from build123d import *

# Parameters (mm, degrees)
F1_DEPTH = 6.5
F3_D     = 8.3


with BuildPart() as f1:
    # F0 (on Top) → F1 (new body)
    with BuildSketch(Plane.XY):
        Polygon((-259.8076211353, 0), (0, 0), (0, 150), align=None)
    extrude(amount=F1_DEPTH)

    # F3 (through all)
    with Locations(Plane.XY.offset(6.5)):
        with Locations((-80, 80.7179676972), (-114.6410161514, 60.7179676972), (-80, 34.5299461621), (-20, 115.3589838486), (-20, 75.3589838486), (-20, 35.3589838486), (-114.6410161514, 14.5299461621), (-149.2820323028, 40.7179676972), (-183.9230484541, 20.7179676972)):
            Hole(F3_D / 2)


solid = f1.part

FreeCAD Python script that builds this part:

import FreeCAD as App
import Part
import Sketcher

V = App.Vector
Q = App.Units.Quantity


def add_polygon(sketch, points):
    """Adds a closed chain of lines whose ends are joined by coincident constraints."""
    first, n = sketch.GeometryCount, len(points)
    for a, b in zip(points, points[1:] + points[:1]):
        sketch.addGeometry(Part.LineSegment(App.Vector(*a, 0), App.Vector(*b, 0)), False)
    for i in range(n):
        sketch.addConstraint(Sketcher.Constraint("Coincident", first + i, 2, first + (i + 1) % n, 1))

doc = App.newDocument("Part")
body = doc.addObject("PartDesign::Body", "Body")

# Sketch on XY plane
sketch1 = body.newObject("Sketcher::SketchObject", "Sketch")
sketch1.AttachmentSupport = (doc.getObject("XY_Plane"), [""])
sketch1.MapMode = "FlatFace"
add_polygon(sketch1, [(-260, 0), (0, 0), (0, 150)])  # lines 0-2
sketch1.addConstraint(Sketcher.Constraint("Horizontal", 0))
sketch1.addConstraint(Sketcher.Constraint("Vertical", 1))
sketch1.addConstraint(Sketcher.Constraint("Coincident", 0, 2, -1, 1))
sketch1.addConstraint(Sketcher.Constraint("DistanceY", 1, 1, 1, 2, 150.0))
sketch1.addConstraint(Sketcher.Constraint("Angle", 2, Q("-150 deg")))
pad1 = body.newObject("PartDesign::Pad", "Pad")
pad1.Profile = sketch1
pad1.Length = 6.5

# Sketch on XY plane
sketch2 = body.newObject("Sketcher::SketchObject", "Sketch001")
sketch2.AttachmentSupport = (doc.getObject("XY_Plane"), [""])
sketch2.MapMode = "FlatFace"
sketch2.AttachmentOffset = App.Placement(V(0, 0, 6.5), App.Rotation())
sketch2.addGeometry(Part.Circle(V(-80, 80.7, 0), V(0, 0, 1), 4.2), False)
sketch2.addGeometry(Part.Circle(V(-114.6, 60.7, 0), V(0, 0, 1), 4.2), False)
sketch2.addGeometry(Part.Circle(V(-80, 34.5, 0), V(0, 0, 1), 4.2), False)
sketch2.addGeometry(Part.Circle(V(-20, 115.4, 0), V(0, 0, 1), 4.2), False)
sketch2.addGeometry(Part.Circle(V(-20, 75.4, 0), V(0, 0, 1), 4.2), False)
sketch2.addGeometry(Part.Circle(V(-20, 35.4, 0), V(0, 0, 1), 4.2), False)
sketch2.addGeometry(Part.Circle(V(-114.6, 14.5, 0), V(0, 0, 1), 4.2), False)
sketch2.addGeometry(Part.Circle(V(-149.3, 40.7, 0), V(0, 0, 1), 4.2), False)
sketch2.addGeometry(Part.Circle(V(-183.9, 20.7, 0), V(0, 0, 1), 4.2), False)
sketch2.addConstraint(Sketcher.Constraint("Equal", 0, 1))
sketch2.addConstraint(Sketcher.Constraint("Equal", 1, 2))
sketch2.addConstraint(Sketcher.Constraint("Equal", 2, 3))
sketch2.addConstraint(Sketcher.Constraint("Equal", 3, 4))
sketch2.addConstraint(Sketcher.Constraint("Equal", 4, 5))
sketch2.addConstraint(Sketcher.Constraint("Equal", 5, 6))
sketch2.addConstraint(Sketcher.Constraint("Equal", 6, 7))
sketch2.addConstraint(Sketcher.Constraint("Equal", 7, 8))
sketch2.addConstraint(Sketcher.Constraint("Vertical", 0, 3, 2, 3))
sketch2.addConstraint(Sketcher.Constraint("Vertical", 3, 3, 4, 3))
sketch2.addConstraint(Sketcher.Constraint("Vertical", 4, 3, 5, 3))
sketch2.addConstraint(Sketcher.Constraint("Vertical", 1, 3, 6, 3))
sketch2.addConstraint(Sketcher.Constraint("Diameter", 0, 8.3))
sketch2.addConstraint(Sketcher.Constraint("DistanceX", 0, 3, -1, 1, 80.0))
sketch2.addConstraint(Sketcher.Constraint("DistanceX", 3, 3, -1, 1, 20.0))
sketch2.addConstraint(Sketcher.Constraint("DistanceY", 1, 3, 0, 3, 20.0))
sketch2.addConstraint(Sketcher.Constraint("DistanceY", 4, 3, 3, 3, 40.0))
sketch2.addConstraint(Sketcher.Constraint("DistanceY", 5, 3, 4, 3, 40.0))
sketch2.addConstraint(Sketcher.Constraint("DistanceY", 6, 3, 2, 3, 20.0))
sketch2.addConstraint(Sketcher.Constraint("DistanceY", 7, 3, 1, 3, 20.0))
sketch2.addConstraint(Sketcher.Constraint("DistanceY", 8, 3, 7, 3, 20.0))
sketch2.addConstraint(Sketcher.Constraint("DistanceX", 8, 3, -1, 1, 183.923048))
sketch2.addConstraint(Sketcher.Constraint("DistanceY", 2, 3, 1, 3, 26.188022))
sketch2.addConstraint(Sketcher.Constraint("DistanceY", -1, 1, 0, 3, 80.717968))
sketch2.addConstraint(Sketcher.Constraint("DistanceX", 1, 3, -1, 1, 114.641016))
sketch2.addConstraint(Sketcher.Constraint("DistanceY", -1, 1, 3, 3, 115.358984))
sketch2.addConstraint(Sketcher.Constraint("DistanceX", 7, 3, -1, 1, 149.282032))
doc.recompute()
hole = body.newObject("PartDesign::Hole", "Hole")
hole.Profile = sketch2
hole.ThreadType = "None"
hole.Diameter = 8.3
hole.DepthType = "ThroughAll"

doc.recompute()
